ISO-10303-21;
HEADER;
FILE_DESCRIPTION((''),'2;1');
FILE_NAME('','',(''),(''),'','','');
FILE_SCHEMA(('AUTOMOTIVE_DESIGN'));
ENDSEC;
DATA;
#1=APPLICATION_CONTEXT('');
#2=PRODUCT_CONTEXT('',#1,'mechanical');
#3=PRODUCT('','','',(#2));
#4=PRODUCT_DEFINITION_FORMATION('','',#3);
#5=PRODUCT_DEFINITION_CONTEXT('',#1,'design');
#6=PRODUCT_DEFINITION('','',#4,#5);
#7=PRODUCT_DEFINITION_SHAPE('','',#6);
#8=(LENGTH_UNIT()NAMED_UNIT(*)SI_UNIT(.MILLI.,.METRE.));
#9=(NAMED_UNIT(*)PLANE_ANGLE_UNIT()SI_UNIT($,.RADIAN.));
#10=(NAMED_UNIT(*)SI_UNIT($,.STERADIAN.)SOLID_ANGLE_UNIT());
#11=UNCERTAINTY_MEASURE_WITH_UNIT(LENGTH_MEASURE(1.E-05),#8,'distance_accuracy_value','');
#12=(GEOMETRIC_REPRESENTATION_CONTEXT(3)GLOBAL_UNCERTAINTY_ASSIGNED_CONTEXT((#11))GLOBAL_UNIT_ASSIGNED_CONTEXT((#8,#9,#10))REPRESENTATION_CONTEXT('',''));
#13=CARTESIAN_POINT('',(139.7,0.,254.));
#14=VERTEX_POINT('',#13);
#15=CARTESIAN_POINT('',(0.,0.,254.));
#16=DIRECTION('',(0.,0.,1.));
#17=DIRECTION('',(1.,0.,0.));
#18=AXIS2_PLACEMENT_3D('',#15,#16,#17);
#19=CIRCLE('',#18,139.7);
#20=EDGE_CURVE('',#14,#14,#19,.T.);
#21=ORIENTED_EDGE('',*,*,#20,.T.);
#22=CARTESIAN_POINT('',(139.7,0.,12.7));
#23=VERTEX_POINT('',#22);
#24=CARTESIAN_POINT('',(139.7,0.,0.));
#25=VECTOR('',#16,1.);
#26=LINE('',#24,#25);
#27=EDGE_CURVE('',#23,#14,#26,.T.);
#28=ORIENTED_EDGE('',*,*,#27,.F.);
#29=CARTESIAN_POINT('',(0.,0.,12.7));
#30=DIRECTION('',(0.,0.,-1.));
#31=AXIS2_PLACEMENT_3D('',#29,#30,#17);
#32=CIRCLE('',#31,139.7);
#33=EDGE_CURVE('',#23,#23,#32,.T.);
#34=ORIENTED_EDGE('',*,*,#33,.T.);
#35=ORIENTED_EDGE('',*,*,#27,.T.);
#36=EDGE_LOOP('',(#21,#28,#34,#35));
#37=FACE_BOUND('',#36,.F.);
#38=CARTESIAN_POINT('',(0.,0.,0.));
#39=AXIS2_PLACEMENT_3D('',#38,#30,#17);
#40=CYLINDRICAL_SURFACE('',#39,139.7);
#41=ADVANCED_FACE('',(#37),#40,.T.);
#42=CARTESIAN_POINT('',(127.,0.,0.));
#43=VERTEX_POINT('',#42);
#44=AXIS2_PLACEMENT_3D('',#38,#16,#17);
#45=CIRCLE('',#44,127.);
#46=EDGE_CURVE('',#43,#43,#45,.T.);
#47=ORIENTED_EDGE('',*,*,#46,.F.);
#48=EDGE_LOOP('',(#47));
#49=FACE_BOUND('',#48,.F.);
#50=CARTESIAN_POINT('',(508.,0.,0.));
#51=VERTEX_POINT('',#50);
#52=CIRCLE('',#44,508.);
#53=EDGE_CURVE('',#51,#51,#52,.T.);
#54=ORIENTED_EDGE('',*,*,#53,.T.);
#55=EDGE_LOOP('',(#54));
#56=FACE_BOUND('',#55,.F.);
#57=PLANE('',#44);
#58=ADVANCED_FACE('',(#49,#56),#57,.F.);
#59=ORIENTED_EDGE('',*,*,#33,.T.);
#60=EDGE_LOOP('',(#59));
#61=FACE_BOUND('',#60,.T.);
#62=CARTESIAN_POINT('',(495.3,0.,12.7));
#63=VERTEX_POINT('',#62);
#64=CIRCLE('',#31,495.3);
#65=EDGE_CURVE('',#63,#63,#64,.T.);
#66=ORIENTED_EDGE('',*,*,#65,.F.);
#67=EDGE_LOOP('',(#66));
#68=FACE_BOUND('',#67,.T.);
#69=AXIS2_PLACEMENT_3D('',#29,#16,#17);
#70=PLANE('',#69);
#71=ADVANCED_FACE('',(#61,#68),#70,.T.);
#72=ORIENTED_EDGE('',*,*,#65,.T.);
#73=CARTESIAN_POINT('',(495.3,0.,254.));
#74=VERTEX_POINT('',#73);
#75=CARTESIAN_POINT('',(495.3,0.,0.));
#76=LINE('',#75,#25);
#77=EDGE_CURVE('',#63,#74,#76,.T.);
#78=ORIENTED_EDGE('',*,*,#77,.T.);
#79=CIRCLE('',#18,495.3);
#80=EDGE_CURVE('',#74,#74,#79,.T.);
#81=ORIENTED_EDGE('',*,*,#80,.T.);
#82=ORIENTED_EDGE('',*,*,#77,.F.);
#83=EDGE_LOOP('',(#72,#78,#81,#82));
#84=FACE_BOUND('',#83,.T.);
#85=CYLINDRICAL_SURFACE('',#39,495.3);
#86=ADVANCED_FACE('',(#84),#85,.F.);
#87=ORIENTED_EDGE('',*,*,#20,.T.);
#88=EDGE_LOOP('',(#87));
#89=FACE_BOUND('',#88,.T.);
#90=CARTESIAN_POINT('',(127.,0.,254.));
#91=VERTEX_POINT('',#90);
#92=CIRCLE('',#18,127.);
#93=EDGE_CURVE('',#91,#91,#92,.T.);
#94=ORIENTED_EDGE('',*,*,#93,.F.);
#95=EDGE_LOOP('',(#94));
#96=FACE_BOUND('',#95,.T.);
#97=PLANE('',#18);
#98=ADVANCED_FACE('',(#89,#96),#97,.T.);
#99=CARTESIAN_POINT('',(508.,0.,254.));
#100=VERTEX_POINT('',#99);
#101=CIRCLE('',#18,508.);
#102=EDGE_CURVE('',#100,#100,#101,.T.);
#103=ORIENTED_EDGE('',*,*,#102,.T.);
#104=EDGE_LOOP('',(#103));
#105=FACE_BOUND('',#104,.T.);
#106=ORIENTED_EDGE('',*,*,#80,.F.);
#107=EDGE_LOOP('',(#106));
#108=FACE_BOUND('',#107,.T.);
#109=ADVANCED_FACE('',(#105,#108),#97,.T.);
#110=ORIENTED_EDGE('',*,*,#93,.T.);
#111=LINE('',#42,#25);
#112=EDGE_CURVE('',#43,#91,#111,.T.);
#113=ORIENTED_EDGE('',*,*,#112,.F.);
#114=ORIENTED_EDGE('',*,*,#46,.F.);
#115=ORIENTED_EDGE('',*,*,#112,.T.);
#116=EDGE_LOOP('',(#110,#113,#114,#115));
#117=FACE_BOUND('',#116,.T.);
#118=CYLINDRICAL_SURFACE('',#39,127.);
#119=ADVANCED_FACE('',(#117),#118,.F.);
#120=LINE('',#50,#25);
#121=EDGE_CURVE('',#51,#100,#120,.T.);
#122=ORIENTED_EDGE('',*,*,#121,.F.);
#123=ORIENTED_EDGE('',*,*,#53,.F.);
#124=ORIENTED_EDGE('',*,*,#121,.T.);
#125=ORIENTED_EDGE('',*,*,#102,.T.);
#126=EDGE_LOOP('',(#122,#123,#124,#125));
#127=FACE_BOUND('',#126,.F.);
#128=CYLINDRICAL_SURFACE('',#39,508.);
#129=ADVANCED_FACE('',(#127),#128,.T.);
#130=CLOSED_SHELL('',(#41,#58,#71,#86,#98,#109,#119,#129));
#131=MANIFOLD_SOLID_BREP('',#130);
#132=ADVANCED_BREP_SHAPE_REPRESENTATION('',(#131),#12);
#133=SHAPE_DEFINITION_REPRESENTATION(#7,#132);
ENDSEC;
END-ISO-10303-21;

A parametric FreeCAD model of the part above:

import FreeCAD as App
import Part
import Sketcher

V = App.Vector
Q = App.Units.Quantity


def faces_at(feature, points):
    """Names of the faces that lie closest to the given points."""
    faces = feature.Shape.Faces
    near = lambda p: min(range(len(faces)), key=lambda i: faces[i].distToShape(Part.Vertex(*p))[0])
    return sorted({f"Face{near(p) + 1}" for p in points})

doc = App.newDocument("Part")
body = doc.addObject("PartDesign::Body", "Body")

# Sketch on XY plane
sketch1 = body.newObject("Sketcher::SketchObject", "Sketch")
sketch1.AttachmentSupport = (doc.getObject("XY_Plane"), [""])
sketch1.MapMode = "FlatFace"
sketch1.addGeometry([
    Part.Circle(V(0, 0, 0), V(0, 0, 1), 508),
    Part.Circle(V(0, 0, 0), V(0, 0, 1), 127),
], False)
sketch1.addConstraint([
    Sketcher.Constraint("Coincident", 0, 3, -1, 1),
    Sketcher.Constraint("Coincident", 1, 3, -1, 1),
    Sketcher.Constraint("Diameter", 0, Q("40 in")),
    Sketcher.Constraint("Diameter", 1, Q("10 in")),
])
pad1 = body.newObject("PartDesign::Pad", "Pad")
pad1.Profile = sketch1
pad1.Length = Q("10 in")
doc.recompute()

thickness = body.newObject("PartDesign::Thickness", "Thickness")
thickness.Base = (pad1, faces_at(pad1, [(-203.2, -203.2, 254)]))
thickness.Value = Q("0.5 in")
thickness.Reversed = True
thickness.Join = "Arc"

doc.recompute()
